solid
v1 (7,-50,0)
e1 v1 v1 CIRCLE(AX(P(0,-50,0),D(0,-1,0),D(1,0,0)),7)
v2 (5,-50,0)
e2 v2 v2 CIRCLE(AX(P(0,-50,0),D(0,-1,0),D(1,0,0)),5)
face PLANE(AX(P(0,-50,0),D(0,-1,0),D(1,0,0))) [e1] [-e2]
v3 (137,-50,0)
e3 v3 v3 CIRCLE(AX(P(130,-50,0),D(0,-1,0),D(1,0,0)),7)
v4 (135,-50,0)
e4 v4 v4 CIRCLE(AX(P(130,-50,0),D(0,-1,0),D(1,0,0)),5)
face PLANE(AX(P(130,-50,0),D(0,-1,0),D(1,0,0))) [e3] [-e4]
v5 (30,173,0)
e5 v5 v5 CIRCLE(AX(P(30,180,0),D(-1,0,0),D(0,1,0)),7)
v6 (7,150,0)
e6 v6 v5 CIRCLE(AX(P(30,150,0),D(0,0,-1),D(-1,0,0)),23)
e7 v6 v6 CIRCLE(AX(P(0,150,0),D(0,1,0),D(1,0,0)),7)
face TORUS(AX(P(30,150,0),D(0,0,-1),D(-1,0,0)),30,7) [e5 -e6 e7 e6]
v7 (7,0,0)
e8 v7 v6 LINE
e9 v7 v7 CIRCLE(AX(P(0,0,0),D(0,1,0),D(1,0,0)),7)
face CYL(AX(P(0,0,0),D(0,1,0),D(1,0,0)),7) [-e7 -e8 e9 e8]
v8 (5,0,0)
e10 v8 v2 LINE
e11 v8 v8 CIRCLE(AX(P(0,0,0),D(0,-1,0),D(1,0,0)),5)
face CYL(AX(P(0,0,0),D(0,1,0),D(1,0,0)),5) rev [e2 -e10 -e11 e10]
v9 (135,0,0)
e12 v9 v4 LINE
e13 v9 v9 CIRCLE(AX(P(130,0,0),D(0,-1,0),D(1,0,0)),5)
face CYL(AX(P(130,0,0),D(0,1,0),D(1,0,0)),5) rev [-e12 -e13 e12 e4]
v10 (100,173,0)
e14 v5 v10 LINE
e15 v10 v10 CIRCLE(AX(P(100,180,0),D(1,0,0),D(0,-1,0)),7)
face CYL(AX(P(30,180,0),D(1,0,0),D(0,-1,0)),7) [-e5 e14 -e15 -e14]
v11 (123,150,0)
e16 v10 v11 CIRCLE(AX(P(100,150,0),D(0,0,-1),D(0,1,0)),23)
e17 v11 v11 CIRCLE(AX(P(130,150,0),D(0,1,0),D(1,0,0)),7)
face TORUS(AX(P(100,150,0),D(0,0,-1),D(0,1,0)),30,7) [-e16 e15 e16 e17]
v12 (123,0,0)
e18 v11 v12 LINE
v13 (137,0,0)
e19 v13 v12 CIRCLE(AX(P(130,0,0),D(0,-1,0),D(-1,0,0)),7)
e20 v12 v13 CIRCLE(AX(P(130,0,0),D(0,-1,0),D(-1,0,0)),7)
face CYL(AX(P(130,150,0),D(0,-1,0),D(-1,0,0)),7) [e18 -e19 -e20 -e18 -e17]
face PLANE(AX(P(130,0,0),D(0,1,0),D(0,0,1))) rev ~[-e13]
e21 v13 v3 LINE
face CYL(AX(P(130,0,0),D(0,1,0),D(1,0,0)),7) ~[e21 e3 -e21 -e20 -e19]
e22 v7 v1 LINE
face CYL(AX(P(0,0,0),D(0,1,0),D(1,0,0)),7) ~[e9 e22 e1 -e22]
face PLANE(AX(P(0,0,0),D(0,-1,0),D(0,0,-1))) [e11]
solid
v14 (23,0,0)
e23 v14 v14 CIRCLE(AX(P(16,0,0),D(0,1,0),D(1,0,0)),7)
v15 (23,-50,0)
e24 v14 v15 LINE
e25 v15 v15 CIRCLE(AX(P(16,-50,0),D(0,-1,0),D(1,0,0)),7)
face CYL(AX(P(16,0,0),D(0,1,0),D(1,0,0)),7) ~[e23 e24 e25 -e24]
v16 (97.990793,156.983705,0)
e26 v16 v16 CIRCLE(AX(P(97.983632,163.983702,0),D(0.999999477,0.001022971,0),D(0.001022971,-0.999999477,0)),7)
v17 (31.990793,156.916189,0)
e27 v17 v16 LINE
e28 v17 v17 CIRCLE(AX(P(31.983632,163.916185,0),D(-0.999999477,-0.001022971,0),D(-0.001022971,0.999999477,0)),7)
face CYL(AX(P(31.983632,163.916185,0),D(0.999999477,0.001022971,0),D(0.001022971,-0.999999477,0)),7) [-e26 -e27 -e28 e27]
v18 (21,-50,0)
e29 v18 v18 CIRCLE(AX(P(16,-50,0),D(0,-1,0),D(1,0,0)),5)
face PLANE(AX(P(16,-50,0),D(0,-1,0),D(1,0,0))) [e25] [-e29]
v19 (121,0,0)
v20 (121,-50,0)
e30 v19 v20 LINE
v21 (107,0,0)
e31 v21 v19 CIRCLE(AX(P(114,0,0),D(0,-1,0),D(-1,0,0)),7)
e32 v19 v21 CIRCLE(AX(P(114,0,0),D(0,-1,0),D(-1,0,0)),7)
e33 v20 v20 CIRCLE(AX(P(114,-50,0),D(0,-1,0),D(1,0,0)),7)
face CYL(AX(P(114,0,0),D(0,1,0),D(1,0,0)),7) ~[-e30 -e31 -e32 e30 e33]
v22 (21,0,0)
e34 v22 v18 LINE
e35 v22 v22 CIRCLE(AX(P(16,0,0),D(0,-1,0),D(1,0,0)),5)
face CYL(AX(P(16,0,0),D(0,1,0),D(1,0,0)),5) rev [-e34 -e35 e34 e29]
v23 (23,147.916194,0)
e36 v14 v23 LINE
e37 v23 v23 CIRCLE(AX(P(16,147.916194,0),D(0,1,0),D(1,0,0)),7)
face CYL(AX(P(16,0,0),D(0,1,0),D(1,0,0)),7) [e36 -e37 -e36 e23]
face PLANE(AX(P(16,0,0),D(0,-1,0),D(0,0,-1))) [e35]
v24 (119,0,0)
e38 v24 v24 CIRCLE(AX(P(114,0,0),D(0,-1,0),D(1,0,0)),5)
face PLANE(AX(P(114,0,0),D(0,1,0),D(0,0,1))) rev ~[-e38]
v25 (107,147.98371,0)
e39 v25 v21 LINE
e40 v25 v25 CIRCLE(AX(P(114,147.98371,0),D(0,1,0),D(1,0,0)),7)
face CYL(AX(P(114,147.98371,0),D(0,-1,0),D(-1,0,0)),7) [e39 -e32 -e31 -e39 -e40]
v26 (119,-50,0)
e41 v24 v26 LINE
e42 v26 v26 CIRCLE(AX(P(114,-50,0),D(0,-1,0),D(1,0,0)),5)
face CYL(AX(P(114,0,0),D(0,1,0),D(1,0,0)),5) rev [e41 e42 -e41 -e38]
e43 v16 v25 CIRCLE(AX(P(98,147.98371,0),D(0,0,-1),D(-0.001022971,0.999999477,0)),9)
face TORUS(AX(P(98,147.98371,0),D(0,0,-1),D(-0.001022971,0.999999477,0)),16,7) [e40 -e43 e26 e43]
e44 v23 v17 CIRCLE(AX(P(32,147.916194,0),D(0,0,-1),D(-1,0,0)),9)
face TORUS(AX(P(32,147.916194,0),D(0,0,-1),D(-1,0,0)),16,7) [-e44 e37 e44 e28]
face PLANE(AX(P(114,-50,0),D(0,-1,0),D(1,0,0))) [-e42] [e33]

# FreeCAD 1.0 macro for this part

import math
import FreeCAD as App
import Part
import Sketcher

doc = App.newDocument("Part")
body = doc.addObject("PartDesign::Body", "Body")

sketch1 = doc.addObject("Sketcher::SketchObject", "Sketch")
body.addObject(sketch1)
sketch1.AttachmentSupport = (doc.XZ_Plane, [""])
sketch1.MapMode = "FlatFace"
sketch1.addGeometry(Part.Circle(App.Vector(0, 0, 0), App.Vector(0, 0, 1), 7), False)
sketch1.addConstraint(Sketcher.Constraint("Coincident", 0, 3, -1, 1))
sketch1.addConstraint(Sketcher.Constraint("Diameter", 0, 14.0))

sketch2 = doc.addObject("Sketcher::SketchObject", "Sketch001")
body.addObject(sketch2)
sketch2.AttachmentSupport = (doc.XY_Plane, [""])
sketch2.MapMode = "FlatFace"
sketch2.addGeometry(Part.LineSegment(App.Vector(0, 0, 0), App.Vector(0, 150, 0)), False)
sketch2.addGeometry(Part.ArcOfCircle(Part.Circle(App.Vector(30, 150, 0), App.Vector(0, 0, 1), 30), math.radians(90), math.radians(180)), False)
sketch2.addGeometry(Part.LineSegment(App.Vector(30, 180, 0), App.Vector(100, 180, 0)), False)
sketch2.addGeometry(Part.ArcOfCircle(Part.Circle(App.Vector(100, 150, 0), App.Vector(0, 0, 1), 30), math.radians(0), math.radians(90)), False)
sketch2.addGeometry(Part.LineSegment(App.Vector(130, 150, 0), App.Vector(130, 0, 0)), False)
sketch2.addConstraint(Sketcher.Constraint("Tangent", 0, 2, 1, 2))
sketch2.addConstraint(Sketcher.Constraint("Tangent", 1, 1, 2, 1))
sketch2.addConstraint(Sketcher.Constraint("Tangent", 2, 2, 3, 2))
sketch2.addConstraint(Sketcher.Constraint("Tangent", 3, 1, 4, 1))
sketch2.addConstraint(Sketcher.Constraint("Vertical", 0))
sketch2.addConstraint(Sketcher.Constraint("Horizontal", 2))
sketch2.addConstraint(Sketcher.Constraint("Vertical", 4))
sketch2.addConstraint(Sketcher.Constraint("Coincident", 0, 1, -1, 1))
sketch2.addConstraint(Sketcher.Constraint("Equal", 1, 3))
sketch2.addConstraint(Sketcher.Constraint("PointOnObject", 4, 2, -1))
sketch2.addConstraint(Sketcher.Constraint("Radius", 1, 30.0))
sketch2.addConstraint(Sketcher.Constraint("DistanceX", 2, 1, 2, 2, 70.0))
sketch2.addConstraint(Sketcher.Constraint("DistanceY", 0, 1, 0, 2, 150.0))
doc.recompute()

additivepipe = doc.addObject("PartDesign::AdditivePipe", "AdditivePipe")
body.addObject(additivepipe)
additivepipe.Profile = sketch1
additivepipe.Spine = (sketch2, ["Edge1", "Edge2", "Edge3", "Edge4", "Edge5"])

sketch3 = doc.addObject("Sketcher::SketchObject", "Sketch002")
body.addObject(sketch3)
sketch3.AttachmentSupport = (doc.XZ_Plane, [""])
sketch3.MapMode = "FlatFace"
sketch3.addGeometry(Part.Circle(App.Vector(0, 0, 0), App.Vector(0, 0, 1), 7), False)
sketch3.addGeometry(Part.Circle(App.Vector(0, 0, 0), App.Vector(0, 0, 1), 5), False)
sketch3.addGeometry(Part.Circle(App.Vector(130, 0, 0), App.Vector(0, 0, 1), 7), False)
sketch3.addGeometry(Part.Circle(App.Vector(130, 0, 0), App.Vector(0, 0, 1), 5), False)
sketch3.addConstraint(Sketcher.Constraint("Coincident", 0, 3, -1, 1))
sketch3.addConstraint(Sketcher.Constraint("Coincident", 1, 3, -1, 1))
sketch3.addConstraint(Sketcher.Constraint("Coincident", 3, 3, 2, 3))
sketch3.addConstraint(Sketcher.Constraint("Equal", 0, 2))
sketch3.addConstraint(Sketcher.Constraint("Equal", 1, 3))
sketch3.addConstraint(Sketcher.Constraint("PointOnObject", 2, 3, -1))
sketch3.addConstraint(Sketcher.Constraint("Diameter", 0, 14.0))
sketch3.addConstraint(Sketcher.Constraint("Diameter", 1, 10.0))
sketch3.addConstraint(Sketcher.Constraint("DistanceX", -1, 1, 2, 3, 130.0))
pad1 = doc.addObject("PartDesign::Pad", "Pad")
body.addObject(pad1)
pad1.Profile = sketch3
pad1.Length = 50
body2 = doc.addObject("PartDesign::Body", "Body001")

sketch4 = doc.addObject("Sketcher::SketchObject", "Sketch003")
body2.addObject(sketch4)
sketch4.AttachmentSupport = (doc.getObject("XZ_Plane001"), [""])
sketch4.MapMode = "FlatFace"
sketch4.addGeometry(Part.Circle(App.Vector(16, 0, 0), App.Vector(0, 0, 1), 7), False)
sketch4.addConstraint(Sketcher.Constraint("PointOnObject", 0, 3, -1))
sketch4.addConstraint(Sketcher.Constraint("Diameter", 0, 14.0))
sketch4.addConstraint(Sketcher.Constraint("DistanceX", -1, 1, 0, 3, 16.0))

sketch5 = doc.addObject("Sketcher::SketchObject", "Sketch004")
body2.addObject(sketch5)
sketch5.AttachmentSupport = (doc.getObject("XY_Plane001"), [""])
sketch5.MapMode = "FlatFace"
sketch5.addGeometry(Part.LineSegment(App.Vector(16, 0, 0), App.Vector(16, 148, 0)), False)
sketch5.addGeometry(Part.ArcOfCircle(Part.Circle(App.Vector(32, 148, 0), App.Vector(0, 0, 1), 16), math.radians(90), math.radians(180)), False)
sketch5.addGeometry(Part.LineSegment(App.Vector(32, 164, 0), App.Vector(98, 164, 0)), False)
sketch5.addGeometry(Part.ArcOfCircle(Part.Circle(App.Vector(98, 148, 0), App.Vector(0, 0, 1), 16), math.radians(0), math.radians(90)), False)
sketch5.addGeometry(Part.LineSegment(App.Vector(114, 148, 0), App.Vector(114, 0, 0)), False)
sketch5.addConstraint(Sketcher.Constraint("Tangent", 0, 2, 1, 2))
sketch5.addConstraint(Sketcher.Constraint("Tangent", 1, 1, 2, 1))
sketch5.addConstraint(Sketcher.Constraint("Tangent", 2, 2, 3, 2))
sketch5.addConstraint(Sketcher.Constraint("Tangent", 3, 1, 4, 1))
sketch5.addConstraint(Sketcher.Constraint("Vertical", 0))
sketch5.addConstraint(Sketcher.Constraint("Vertical", 4))
sketch5.addConstraint(Sketcher.Constraint("Equal", 1, 3))
sketch5.addConstraint(Sketcher.Constraint("PointOnObject", 0, 1, -1))
sketch5.addConstraint(Sketcher.Constraint("PointOnObject", 4, 2, -1))
sketch5.addConstraint(Sketcher.Constraint("Radius", 1, 16.0))
sketch5.addConstraint(Sketcher.Constraint("DistanceX", -1, 1, 1, 3, 32.0))
sketch5.addConstraint(Sketcher.Constraint("DistanceX", -1, 1, 3, 3, 98.0))
sketch5.addConstraint(Sketcher.Constraint("DistanceY", 4, 2, 4, 1, 147.98371))
sketch5.addConstraint(Sketcher.Constraint("DistanceY", 0, 1, 0, 2, 147.916194))
doc.recompute()

additivepipe2 = doc.addObject("PartDesign::AdditivePipe", "AdditivePipe001")
body2.addObject(additivepipe2)
additivepipe2.Profile = sketch4
additivepipe2.Spine = (sketch5, ["Edge1", "Edge2", "Edge3", "Edge4", "Edge5"])

sketch6 = doc.addObject("Sketcher::SketchObject", "Sketch005")
body2.addObject(sketch6)
sketch6.AttachmentSupport = (doc.getObject("XZ_Plane001"), [""])
sketch6.MapMode = "FlatFace"
sketch6.addGeometry(Part.Circle(App.Vector(16, 0, 0), App.Vector(0, 0, 1), 7), False)
sketch6.addGeometry(Part.Circle(App.Vector(16, 0, 0), App.Vector(0, 0, 1), 5), False)
sketch6.addGeometry(Part.Circle(App.Vector(114, 0, 0), App.Vector(0, 0, 1), 7), False)
sketch6.addGeometry(Part.Circle(App.Vector(114, 0, 0), App.Vector(0, 0, 1), 5), False)
sketch6.addConstraint(Sketcher.Constraint("Coincident", 1, 3, 0, 3))
sketch6.addConstraint(Sketcher.Constraint("Coincident", 3, 3, 2, 3))
sketch6.addConstraint(Sketcher.Constraint("Equal", 0, 2))
sketch6.addConstraint(Sketcher.Constraint("Equal", 1, 3))
sketch6.addConstraint(Sketcher.Constraint("PointOnObject", 0, 3, -1))
sketch6.addConstraint(Sketcher.Constraint("PointOnObject", 2, 3, -1))
sketch6.addConstraint(Sketcher.Constraint("Diameter", 0, 14.0))
sketch6.addConstraint(Sketcher.Constraint("Diameter", 1, 10.0))
sketch6.addConstraint(Sketcher.Constraint("DistanceX", -1, 1, 0, 3, 16.0))
sketch6.addConstraint(Sketcher.Constraint("DistanceX", -1, 1, 2, 3, 114.0))
pad2 = doc.addObject("PartDesign::Pad", "Pad001")
body2.addObject(pad2)
pad2.Profile = sketch6
pad2.Length = 50

doc.recompute()
